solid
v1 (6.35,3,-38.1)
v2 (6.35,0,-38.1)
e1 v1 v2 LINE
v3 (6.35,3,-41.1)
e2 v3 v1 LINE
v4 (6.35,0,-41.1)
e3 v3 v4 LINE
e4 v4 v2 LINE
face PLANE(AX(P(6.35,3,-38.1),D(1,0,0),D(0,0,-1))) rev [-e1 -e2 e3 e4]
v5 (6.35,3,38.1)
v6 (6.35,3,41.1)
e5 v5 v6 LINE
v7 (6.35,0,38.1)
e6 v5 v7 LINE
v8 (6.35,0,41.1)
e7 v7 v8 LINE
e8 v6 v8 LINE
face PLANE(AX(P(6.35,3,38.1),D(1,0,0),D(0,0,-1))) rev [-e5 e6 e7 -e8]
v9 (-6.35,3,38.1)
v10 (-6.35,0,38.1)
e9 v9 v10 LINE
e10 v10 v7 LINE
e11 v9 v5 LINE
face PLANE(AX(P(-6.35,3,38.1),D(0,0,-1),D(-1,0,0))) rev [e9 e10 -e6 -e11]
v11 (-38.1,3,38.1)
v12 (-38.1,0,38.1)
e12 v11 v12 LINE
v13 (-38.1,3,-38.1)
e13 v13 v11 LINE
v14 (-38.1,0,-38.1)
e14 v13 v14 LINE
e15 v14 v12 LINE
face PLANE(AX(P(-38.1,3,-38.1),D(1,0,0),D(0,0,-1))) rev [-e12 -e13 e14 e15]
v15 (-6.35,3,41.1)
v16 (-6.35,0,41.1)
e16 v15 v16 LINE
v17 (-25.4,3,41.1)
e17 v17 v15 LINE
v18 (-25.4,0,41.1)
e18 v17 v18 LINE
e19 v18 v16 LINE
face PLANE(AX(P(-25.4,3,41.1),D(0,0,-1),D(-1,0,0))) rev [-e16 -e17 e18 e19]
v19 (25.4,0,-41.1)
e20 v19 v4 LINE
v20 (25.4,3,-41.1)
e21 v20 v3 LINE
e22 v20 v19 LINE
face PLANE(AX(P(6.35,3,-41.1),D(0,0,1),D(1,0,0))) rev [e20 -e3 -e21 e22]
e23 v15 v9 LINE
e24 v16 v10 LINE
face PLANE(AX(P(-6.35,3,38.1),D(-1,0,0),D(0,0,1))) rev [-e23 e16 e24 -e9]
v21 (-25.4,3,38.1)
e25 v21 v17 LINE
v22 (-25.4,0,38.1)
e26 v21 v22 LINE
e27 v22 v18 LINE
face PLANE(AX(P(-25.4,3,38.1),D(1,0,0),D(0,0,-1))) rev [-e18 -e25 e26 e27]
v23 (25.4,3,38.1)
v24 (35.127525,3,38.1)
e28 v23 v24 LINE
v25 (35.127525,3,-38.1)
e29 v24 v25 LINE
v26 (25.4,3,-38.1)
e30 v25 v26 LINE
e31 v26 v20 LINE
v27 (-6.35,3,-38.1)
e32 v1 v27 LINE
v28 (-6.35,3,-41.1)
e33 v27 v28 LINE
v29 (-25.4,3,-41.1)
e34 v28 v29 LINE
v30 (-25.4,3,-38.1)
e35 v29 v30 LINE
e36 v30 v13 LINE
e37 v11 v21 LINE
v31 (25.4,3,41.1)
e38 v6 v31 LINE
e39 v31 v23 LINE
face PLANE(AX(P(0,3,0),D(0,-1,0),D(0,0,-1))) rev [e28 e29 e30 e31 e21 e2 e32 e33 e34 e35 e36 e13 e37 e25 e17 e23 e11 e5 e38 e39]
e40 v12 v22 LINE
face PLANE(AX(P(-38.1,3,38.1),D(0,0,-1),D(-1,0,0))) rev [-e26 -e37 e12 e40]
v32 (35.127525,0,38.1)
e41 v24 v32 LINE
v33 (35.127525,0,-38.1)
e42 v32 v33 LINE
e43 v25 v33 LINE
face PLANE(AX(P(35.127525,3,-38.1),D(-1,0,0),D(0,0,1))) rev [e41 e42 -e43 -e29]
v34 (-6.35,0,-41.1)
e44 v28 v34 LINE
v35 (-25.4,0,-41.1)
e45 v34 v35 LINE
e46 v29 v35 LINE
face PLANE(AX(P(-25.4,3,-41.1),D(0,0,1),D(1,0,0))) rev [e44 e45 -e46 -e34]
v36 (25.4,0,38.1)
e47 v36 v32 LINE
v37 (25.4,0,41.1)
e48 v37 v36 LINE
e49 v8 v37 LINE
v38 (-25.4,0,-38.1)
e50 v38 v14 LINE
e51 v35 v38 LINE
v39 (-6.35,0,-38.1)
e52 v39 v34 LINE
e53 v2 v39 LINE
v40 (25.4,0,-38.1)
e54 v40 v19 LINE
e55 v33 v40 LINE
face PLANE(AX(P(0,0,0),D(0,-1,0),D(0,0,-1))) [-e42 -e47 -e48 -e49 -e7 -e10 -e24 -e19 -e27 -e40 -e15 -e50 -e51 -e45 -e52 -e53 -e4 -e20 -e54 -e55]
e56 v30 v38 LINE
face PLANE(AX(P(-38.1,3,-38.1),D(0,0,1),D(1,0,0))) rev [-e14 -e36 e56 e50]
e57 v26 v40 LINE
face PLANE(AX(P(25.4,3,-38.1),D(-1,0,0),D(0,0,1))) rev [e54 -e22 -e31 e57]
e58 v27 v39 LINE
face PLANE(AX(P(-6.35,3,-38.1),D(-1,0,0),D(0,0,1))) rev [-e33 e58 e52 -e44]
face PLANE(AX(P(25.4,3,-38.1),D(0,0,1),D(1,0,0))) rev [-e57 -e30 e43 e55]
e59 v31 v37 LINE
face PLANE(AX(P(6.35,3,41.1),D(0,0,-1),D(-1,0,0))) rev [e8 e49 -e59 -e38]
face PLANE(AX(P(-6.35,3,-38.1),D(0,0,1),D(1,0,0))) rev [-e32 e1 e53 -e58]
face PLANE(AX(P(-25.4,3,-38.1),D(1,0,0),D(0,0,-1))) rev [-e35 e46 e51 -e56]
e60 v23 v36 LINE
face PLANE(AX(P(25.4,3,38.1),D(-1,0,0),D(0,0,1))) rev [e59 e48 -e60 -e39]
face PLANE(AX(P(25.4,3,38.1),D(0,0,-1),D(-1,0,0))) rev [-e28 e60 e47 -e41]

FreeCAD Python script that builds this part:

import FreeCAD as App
import Part
import Sketcher
from FreeCAD import Vector
Q = App.Units.Quantity

doc = App.newDocument("Part")
body = doc.addObject("PartDesign::Body", "Body")

# Sketch on XZ plane
sketch1 = body.newObject("Sketcher::SketchObject", "Sketch")
sketch1.AttachmentSupport = (doc.getObject("XZ_Plane"), [""])
sketch1.MapMode = "FlatFace"
sketch1.addGeometry(Part.LineSegment(Vector(-6.3, -41.1, 0), Vector(-25.4, -41.1, 0)), False)
sketch1.addGeometry(Part.LineSegment(Vector(-25.4, -41.1, 0), Vector(-25.4, -38.1, 0)), False)
sketch1.addGeometry(Part.LineSegment(Vector(-25.4, -38.1, 0), Vector(-38.1, -38.1, 0)), False)
sketch1.addGeometry(Part.LineSegment(Vector(-38.1, -38.1, 0), Vector(-38.1, 38.1, 0)), False)
sketch1.addGeometry(Part.LineSegment(Vector(-38.1, 38.1, 0), Vector(-25.4, 38.1, 0)), False)
sketch1.addGeometry(Part.LineSegment(Vector(-25.4, 38.1, 0), Vector(-25.4, 41.1, 0)), False)
sketch1.addGeometry(Part.LineSegment(Vector(-25.4, 41.1, 0), Vector(-6.3, 41.1, 0)), False)
sketch1.addGeometry(Part.LineSegment(Vector(-6.3, 41.1, 0), Vector(-6.3, 38.1, 0)), False)
sketch1.addGeometry(Part.LineSegment(Vector(-6.3, 38.1, 0), Vector(6.3, 38.1, 0)), False)
sketch1.addGeometry(Part.LineSegment(Vector(6.3, 38.1, 0), Vector(6.3, 41.1, 0)), False)
sketch1.addGeometry(Part.LineSegment(Vector(6.3, 41.1, 0), Vector(25.4, 41.1, 0)), False)
sketch1.addGeometry(Part.LineSegment(Vector(25.4, 41.1, 0), Vector(25.4, 38.1, 0)), False)
sketch1.addGeometry(Part.LineSegment(Vector(25.4, 38.1, 0), Vector(35.1, 38.1, 0)), False)
sketch1.addGeometry(Part.LineSegment(Vector(35.1, 38.1, 0), Vector(35.1, -38.1, 0)), False)
sketch1.addGeometry(Part.LineSegment(Vector(35.1, -38.1, 0), Vector(25.4, -38.1, 0)), False)
sketch1.addGeometry(Part.LineSegment(Vector(25.4, -38.1, 0), Vector(25.4, -41.1, 0)), False)
sketch1.addGeometry(Part.LineSegment(Vector(25.4, -41.1, 0), Vector(6.3, -41.1, 0)), False)
sketch1.addGeometry(Part.LineSegment(Vector(6.3, -41.1, 0), Vector(6.3, -38.1, 0)), False)
sketch1.addGeometry(Part.LineSegment(Vector(6.3, -38.1, 0), Vector(-6.3, -38.1, 0)), False)
sketch1.addGeometry(Part.LineSegment(Vector(-6.3, -38.1, 0), Vector(-6.3, -41.1, 0)), False)
sketch1.addConstraint(Sketcher.Constraint("Coincident", 0, 2, 1, 1))
sketch1.addConstraint(Sketcher.Constraint("Coincident", 1, 2, 2, 1))
sketch1.addConstraint(Sketcher.Constraint("Coincident", 2, 2, 3, 1))
sketch1.addConstraint(Sketcher.Constraint("Coincident", 3, 2, 4, 1))
sketch1.addConstraint(Sketcher.Constraint("Coincident", 4, 2, 5, 1))
sketch1.addConstraint(Sketcher.Constraint("Coincident", 5, 2, 6, 1))
sketch1.addConstraint(Sketcher.Constraint("Coincident", 6, 2, 7, 1))
sketch1.addConstraint(Sketcher.Constraint("Coincident", 7, 2, 8, 1))
sketch1.addConstraint(Sketcher.Constraint("Coincident", 8, 2, 9, 1))
sketch1.addConstraint(Sketcher.Constraint("Coincident", 9, 2, 10, 1))
sketch1.addConstraint(Sketcher.Constraint("Coincident", 10, 2, 11, 1))
sketch1.addConstraint(Sketcher.Constraint("Coincident", 11, 2, 12, 1))
sketch1.addConstraint(Sketcher.Constraint("Coincident", 12, 2, 13, 1))
sketch1.addConstraint(Sketcher.Constraint("Coincident", 13, 2, 14, 1))
sketch1.addConstraint(Sketcher.Constraint("Coincident", 14, 2, 15, 1))
sketch1.addConstraint(Sketcher.Constraint("Coincident", 15, 2, 16, 1))
sketch1.addConstraint(Sketcher.Constraint("Coincident", 16, 2, 17, 1))
sketch1.addConstraint(Sketcher.Constraint("Coincident", 17, 2, 18, 1))
sketch1.addConstraint(Sketcher.Constraint("Coincident", 18, 2, 19, 1))
sketch1.addConstraint(Sketcher.Constraint("Coincident", 19, 2, 0, 1))
sketch1.addConstraint(Sketcher.Constraint("Horizontal", 0))
sketch1.addConstraint(Sketcher.Constraint("Vertical", 1))
sketch1.addConstraint(Sketcher.Constraint("Horizontal", 2))
sketch1.addConstraint(Sketcher.Constraint("Vertical", 3))
sketch1.addConstraint(Sketcher.Constraint("Horizontal", 4))
sketch1.addConstraint(Sketcher.Constraint("Vertical", 5))
sketch1.addConstraint(Sketcher.Constraint("Horizontal", 6))
sketch1.addConstraint(Sketcher.Constraint("Vertical", 7))
sketch1.addConstraint(Sketcher.Constraint("Horizontal", 8))
sketch1.addConstraint(Sketcher.Constraint("Vertical", 9))
sketch1.addConstraint(Sketcher.Constraint("Horizontal", 10))
sketch1.addConstraint(Sketcher.Constraint("Vertical", 11))
sketch1.addConstraint(Sketcher.Constraint("Horizontal", 12))
sketch1.addConstraint(Sketcher.Constraint("Vertical", 13))
sketch1.addConstraint(Sketcher.Constraint("Horizontal", 14))
sketch1.addConstraint(Sketcher.Constraint("Vertical", 15))
sketch1.addConstraint(Sketcher.Constraint("Horizontal", 16))
sketch1.addConstraint(Sketcher.Constraint("Vertical", 17))
sketch1.addConstraint(Sketcher.Constraint("Horizontal", 18))
sketch1.addConstraint(Sketcher.Constraint("Vertical", 19))
sketch1.addConstraint(Sketcher.Constraint("Symmetric", 0, 2, 10, 2, -1, 1))
sketch1.addConstraint(Sketcher.Constraint("Symmetric", 4, 2, 14, 2, -1, 1))
sketch1.addConstraint(Sketcher.Constraint("Symmetric", 6, 2, 16, 2, -1, 1))
sketch1.addConstraint(Sketcher.Constraint("Symmetric", 8, 2, 18, 2, -1, 1))
sketch1.addConstraint(Sketcher.Constraint("Symmetric", 6, 2, 9, 2, -2))
sketch1.addConstraint(Sketcher.Constraint("Symmetric", 4, 2, 11, 2, -2))
sketch1.addConstraint(Sketcher.Constraint("Horizontal", 4, 2, 7, 2))
sketch1.addConstraint(Sketcher.Constraint("Horizontal", 2, 2, 13, 2))
sketch1.addConstraint(Sketcher.Constraint("Equal", 4, 8))
sketch1.addConstraint(Sketcher.Constraint("DistanceY", 3, 1, 3, 2, Q("3 in")))
sketch1.addConstraint(Sketcher.Constraint("DistanceX", 2, 2, 2, 1, Q("0.5 in")))
sketch1.addConstraint(Sketcher.Constraint("DistanceX", 0, 2, -1, 1, Q("1 in")))
sketch1.addConstraint(Sketcher.Constraint("DistanceY", 1, 1, 1, 2, 3.0))
sketch1.addConstraint(Sketcher.Constraint("DistanceX", 12, 1, 12, 2, 9.727525))
pad1 = body.newObject("PartDesign::Pad", "Pad")
pad1.Profile = sketch1
pad1.Length = 3
pad1.Reversed = True

doc.recompute()
